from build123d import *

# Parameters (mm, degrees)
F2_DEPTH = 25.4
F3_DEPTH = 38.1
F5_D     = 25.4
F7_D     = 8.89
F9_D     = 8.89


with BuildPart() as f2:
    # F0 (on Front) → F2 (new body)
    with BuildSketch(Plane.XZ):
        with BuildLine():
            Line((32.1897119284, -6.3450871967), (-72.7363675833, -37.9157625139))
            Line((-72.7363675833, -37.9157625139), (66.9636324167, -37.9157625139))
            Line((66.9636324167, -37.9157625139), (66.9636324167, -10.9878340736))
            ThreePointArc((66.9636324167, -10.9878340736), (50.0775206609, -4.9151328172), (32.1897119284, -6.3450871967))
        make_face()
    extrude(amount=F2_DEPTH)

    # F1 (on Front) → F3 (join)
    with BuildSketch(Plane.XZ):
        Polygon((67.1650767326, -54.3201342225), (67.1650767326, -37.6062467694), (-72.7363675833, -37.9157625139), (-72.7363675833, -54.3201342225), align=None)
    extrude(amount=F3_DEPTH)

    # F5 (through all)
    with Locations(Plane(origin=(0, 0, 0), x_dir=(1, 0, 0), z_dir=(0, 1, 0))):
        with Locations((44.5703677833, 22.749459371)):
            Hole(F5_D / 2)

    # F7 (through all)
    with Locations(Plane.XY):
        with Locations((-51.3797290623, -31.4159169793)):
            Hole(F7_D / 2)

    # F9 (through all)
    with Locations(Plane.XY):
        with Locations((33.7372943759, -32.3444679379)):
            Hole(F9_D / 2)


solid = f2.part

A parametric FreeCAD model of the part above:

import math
import FreeCAD as App
import Part
import Sketcher

V = App.Vector
Q = App.Units.Quantity

doc = App.newDocument("Part")
body = doc.addObject("PartDesign::Body", "Body")

sketch1 = body.newObject("Sketcher::SketchObject", "Sketch")
sketch1.AttachmentSupport = (doc.getObject("XZ_Plane"), [""])
sketch1.MapMode = "FlatFace"
sketch1.addGeometry([
    Part.LineSegment(V(32, -6, 0), V(-73, -38, 0)),
    Part.LineSegment(V(-73, -38, 0), V(67, -38, 0)),
    Part.LineSegment(V(67, -38, 0), V(67, -11, 0)),
    Part.ArcOfCircle(Part.Circle(V(44, -47, 0), V(0, 0, 1), 43), math.radians(58), math.radians(107)),
], False)
sketch1.addConstraint([
    Sketcher.Constraint("Coincident", 0, 2, 1, 1),
    Sketcher.Constraint("Coincident", 1, 2, 2, 1),
    Sketcher.Constraint("Coincident", 2, 2, 3, 1),
    Sketcher.Constraint("Tangent", 3, 2, 0, 1),
    Sketcher.Constraint("Horizontal", 1),
    Sketcher.Constraint("Vertical", 2),
    Sketcher.Constraint("DistanceX", 1, 1, 1, 2, Q("5.5 in")),
    Sketcher.Constraint("Radius", 3, 42.543097),
    Sketcher.Constraint("DistanceY", 2, 1, 2, 2, 26.927928),
    Sketcher.Constraint("Distance", 0, 109.57276),
    Sketcher.Constraint("DistanceX", -1, 1, 3, 3, 44.447451),
    Sketcher.Constraint("DistanceY", 3, 3, -1, 1, 47.084048),
])
pad1 = body.newObject("PartDesign::Pad", "Pad")
pad1.Profile = sketch1
pad1.Length = Q("1 in")

sketch2 = body.newObject("Sketcher::SketchObject", "Sketch001")
sketch2.AttachmentSupport = (doc.getObject("XZ_Plane"), [""])
sketch2.MapMode = "FlatFace"
sketch2.addGeometry([
    Part.LineSegment(V(67, -54, 0), V(67, -38, 0)),
    Part.LineSegment(V(67, -38, 0), V(-73, -38, 0)),
    Part.LineSegment(V(-73, -38, 0), V(-73, -54, 0)),
    Part.LineSegment(V(-73, -54, 0), V(67, -54, 0)),
], False)
sketch2.addConstraint([
    Sketcher.Constraint("Coincident", 0, 2, 1, 1),
    Sketcher.Constraint("Coincident", 1, 2, 2, 1),
    Sketcher.Constraint("Coincident", 2, 2, 3, 1),
    Sketcher.Constraint("Coincident", 3, 2, 0, 1),
    Sketcher.Constraint("Vertical", 0),
    Sketcher.Constraint("Vertical", 2),
    Sketcher.Constraint("Horizontal", 3),
    Sketcher.Constraint("DistanceY", 2, 2, 2, 1, 16.404372),
    Sketcher.Constraint("DistanceX", 3, 1, 3, 2, 139.901444),
    Sketcher.Constraint("DistanceY", 0, 1, 0, 2, 16.713887),
    Sketcher.Constraint("DistanceX", -1, 1, 0, 2, 67.165077),
    Sketcher.Constraint("DistanceY", 0, 2, -1, 1, 37.606247),
])
pad2 = body.newObject("PartDesign::Pad", "Pad001")
pad2.Profile = sketch2
pad2.Length = Q("1.5 in")

sketch3 = body.newObject("Sketcher::SketchObject", "Sketch002")
sketch3.AttachmentSupport = (doc.getObject("XZ_Plane"), [""])
sketch3.MapMode = "FlatFace"
sketch3.addGeometry(Part.Circle(V(45, -23, 0), V(0, 0, 1), 13), False)
sketch3.addConstraint([
    Sketcher.Constraint("Diameter", 0, Q("1 in")),
    Sketcher.Constraint("DistanceY", 0, 3, -1, 1, 22.749459),
    Sketcher.Constraint("DistanceX", -1, 1, 0, 3, 44.570368),
])
doc.recompute()
hole = body.newObject("PartDesign::Hole", "Hole")
hole.Profile = sketch3
hole.ThreadType = "None"
hole.Diameter = Q("1 in")
hole.DepthType = "ThroughAll"
hole.Reversed = True

sketch4 = body.newObject("Sketcher::SketchObject", "Sketch003")
sketch4.AttachmentSupport = (doc.getObject("XY_Plane"), [""])
sketch4.MapMode = "FlatFace"
sketch4.addGeometry(Part.Circle(V(-51.4, -31.4, 0), V(0, 0, 1), 4.4), False)
sketch4.addConstraint([
    Sketcher.Constraint("Diameter", 0, Q("0.35 in")),
    Sketcher.Constraint("DistanceX", 0, 3, -1, 1, 51.379729),
    Sketcher.Constraint("DistanceY", 0, 3, -1, 1, 31.415917),
])
doc.recompute()
hole2 = body.newObject("PartDesign::Hole", "Hole001")
hole2.Profile = sketch4
hole2.ThreadType = "None"
hole2.Diameter = Q("0.35 in")
hole2.DepthType = "ThroughAll"

sketch5 = body.newObject("Sketcher::SketchObject", "Sketch004")
sketch5.AttachmentSupport = (doc.getObject("XY_Plane"), [""])
sketch5.MapMode = "FlatFace"
sketch5.addGeometry(Part.Circle(V(33.7, -32.3, 0), V(0, 0, 1), 4.4), False)
sketch5.addConstraint([
    Sketcher.Constraint("Diameter", 0, Q("0.35 in")),
    Sketcher.Constraint("DistanceX", -1, 1, 0, 3, 33.737294),
    Sketcher.Constraint("DistanceY", 0, 3, -1, 1, 32.344468),
])
doc.recompute()
hole3 = body.newObject("PartDesign::Hole", "Hole002")
hole3.Profile = sketch5
hole3.ThreadType = "None"
hole3.Diameter = Q("0.35 in")
hole3.DepthType = "ThroughAll"

doc.recompute()
